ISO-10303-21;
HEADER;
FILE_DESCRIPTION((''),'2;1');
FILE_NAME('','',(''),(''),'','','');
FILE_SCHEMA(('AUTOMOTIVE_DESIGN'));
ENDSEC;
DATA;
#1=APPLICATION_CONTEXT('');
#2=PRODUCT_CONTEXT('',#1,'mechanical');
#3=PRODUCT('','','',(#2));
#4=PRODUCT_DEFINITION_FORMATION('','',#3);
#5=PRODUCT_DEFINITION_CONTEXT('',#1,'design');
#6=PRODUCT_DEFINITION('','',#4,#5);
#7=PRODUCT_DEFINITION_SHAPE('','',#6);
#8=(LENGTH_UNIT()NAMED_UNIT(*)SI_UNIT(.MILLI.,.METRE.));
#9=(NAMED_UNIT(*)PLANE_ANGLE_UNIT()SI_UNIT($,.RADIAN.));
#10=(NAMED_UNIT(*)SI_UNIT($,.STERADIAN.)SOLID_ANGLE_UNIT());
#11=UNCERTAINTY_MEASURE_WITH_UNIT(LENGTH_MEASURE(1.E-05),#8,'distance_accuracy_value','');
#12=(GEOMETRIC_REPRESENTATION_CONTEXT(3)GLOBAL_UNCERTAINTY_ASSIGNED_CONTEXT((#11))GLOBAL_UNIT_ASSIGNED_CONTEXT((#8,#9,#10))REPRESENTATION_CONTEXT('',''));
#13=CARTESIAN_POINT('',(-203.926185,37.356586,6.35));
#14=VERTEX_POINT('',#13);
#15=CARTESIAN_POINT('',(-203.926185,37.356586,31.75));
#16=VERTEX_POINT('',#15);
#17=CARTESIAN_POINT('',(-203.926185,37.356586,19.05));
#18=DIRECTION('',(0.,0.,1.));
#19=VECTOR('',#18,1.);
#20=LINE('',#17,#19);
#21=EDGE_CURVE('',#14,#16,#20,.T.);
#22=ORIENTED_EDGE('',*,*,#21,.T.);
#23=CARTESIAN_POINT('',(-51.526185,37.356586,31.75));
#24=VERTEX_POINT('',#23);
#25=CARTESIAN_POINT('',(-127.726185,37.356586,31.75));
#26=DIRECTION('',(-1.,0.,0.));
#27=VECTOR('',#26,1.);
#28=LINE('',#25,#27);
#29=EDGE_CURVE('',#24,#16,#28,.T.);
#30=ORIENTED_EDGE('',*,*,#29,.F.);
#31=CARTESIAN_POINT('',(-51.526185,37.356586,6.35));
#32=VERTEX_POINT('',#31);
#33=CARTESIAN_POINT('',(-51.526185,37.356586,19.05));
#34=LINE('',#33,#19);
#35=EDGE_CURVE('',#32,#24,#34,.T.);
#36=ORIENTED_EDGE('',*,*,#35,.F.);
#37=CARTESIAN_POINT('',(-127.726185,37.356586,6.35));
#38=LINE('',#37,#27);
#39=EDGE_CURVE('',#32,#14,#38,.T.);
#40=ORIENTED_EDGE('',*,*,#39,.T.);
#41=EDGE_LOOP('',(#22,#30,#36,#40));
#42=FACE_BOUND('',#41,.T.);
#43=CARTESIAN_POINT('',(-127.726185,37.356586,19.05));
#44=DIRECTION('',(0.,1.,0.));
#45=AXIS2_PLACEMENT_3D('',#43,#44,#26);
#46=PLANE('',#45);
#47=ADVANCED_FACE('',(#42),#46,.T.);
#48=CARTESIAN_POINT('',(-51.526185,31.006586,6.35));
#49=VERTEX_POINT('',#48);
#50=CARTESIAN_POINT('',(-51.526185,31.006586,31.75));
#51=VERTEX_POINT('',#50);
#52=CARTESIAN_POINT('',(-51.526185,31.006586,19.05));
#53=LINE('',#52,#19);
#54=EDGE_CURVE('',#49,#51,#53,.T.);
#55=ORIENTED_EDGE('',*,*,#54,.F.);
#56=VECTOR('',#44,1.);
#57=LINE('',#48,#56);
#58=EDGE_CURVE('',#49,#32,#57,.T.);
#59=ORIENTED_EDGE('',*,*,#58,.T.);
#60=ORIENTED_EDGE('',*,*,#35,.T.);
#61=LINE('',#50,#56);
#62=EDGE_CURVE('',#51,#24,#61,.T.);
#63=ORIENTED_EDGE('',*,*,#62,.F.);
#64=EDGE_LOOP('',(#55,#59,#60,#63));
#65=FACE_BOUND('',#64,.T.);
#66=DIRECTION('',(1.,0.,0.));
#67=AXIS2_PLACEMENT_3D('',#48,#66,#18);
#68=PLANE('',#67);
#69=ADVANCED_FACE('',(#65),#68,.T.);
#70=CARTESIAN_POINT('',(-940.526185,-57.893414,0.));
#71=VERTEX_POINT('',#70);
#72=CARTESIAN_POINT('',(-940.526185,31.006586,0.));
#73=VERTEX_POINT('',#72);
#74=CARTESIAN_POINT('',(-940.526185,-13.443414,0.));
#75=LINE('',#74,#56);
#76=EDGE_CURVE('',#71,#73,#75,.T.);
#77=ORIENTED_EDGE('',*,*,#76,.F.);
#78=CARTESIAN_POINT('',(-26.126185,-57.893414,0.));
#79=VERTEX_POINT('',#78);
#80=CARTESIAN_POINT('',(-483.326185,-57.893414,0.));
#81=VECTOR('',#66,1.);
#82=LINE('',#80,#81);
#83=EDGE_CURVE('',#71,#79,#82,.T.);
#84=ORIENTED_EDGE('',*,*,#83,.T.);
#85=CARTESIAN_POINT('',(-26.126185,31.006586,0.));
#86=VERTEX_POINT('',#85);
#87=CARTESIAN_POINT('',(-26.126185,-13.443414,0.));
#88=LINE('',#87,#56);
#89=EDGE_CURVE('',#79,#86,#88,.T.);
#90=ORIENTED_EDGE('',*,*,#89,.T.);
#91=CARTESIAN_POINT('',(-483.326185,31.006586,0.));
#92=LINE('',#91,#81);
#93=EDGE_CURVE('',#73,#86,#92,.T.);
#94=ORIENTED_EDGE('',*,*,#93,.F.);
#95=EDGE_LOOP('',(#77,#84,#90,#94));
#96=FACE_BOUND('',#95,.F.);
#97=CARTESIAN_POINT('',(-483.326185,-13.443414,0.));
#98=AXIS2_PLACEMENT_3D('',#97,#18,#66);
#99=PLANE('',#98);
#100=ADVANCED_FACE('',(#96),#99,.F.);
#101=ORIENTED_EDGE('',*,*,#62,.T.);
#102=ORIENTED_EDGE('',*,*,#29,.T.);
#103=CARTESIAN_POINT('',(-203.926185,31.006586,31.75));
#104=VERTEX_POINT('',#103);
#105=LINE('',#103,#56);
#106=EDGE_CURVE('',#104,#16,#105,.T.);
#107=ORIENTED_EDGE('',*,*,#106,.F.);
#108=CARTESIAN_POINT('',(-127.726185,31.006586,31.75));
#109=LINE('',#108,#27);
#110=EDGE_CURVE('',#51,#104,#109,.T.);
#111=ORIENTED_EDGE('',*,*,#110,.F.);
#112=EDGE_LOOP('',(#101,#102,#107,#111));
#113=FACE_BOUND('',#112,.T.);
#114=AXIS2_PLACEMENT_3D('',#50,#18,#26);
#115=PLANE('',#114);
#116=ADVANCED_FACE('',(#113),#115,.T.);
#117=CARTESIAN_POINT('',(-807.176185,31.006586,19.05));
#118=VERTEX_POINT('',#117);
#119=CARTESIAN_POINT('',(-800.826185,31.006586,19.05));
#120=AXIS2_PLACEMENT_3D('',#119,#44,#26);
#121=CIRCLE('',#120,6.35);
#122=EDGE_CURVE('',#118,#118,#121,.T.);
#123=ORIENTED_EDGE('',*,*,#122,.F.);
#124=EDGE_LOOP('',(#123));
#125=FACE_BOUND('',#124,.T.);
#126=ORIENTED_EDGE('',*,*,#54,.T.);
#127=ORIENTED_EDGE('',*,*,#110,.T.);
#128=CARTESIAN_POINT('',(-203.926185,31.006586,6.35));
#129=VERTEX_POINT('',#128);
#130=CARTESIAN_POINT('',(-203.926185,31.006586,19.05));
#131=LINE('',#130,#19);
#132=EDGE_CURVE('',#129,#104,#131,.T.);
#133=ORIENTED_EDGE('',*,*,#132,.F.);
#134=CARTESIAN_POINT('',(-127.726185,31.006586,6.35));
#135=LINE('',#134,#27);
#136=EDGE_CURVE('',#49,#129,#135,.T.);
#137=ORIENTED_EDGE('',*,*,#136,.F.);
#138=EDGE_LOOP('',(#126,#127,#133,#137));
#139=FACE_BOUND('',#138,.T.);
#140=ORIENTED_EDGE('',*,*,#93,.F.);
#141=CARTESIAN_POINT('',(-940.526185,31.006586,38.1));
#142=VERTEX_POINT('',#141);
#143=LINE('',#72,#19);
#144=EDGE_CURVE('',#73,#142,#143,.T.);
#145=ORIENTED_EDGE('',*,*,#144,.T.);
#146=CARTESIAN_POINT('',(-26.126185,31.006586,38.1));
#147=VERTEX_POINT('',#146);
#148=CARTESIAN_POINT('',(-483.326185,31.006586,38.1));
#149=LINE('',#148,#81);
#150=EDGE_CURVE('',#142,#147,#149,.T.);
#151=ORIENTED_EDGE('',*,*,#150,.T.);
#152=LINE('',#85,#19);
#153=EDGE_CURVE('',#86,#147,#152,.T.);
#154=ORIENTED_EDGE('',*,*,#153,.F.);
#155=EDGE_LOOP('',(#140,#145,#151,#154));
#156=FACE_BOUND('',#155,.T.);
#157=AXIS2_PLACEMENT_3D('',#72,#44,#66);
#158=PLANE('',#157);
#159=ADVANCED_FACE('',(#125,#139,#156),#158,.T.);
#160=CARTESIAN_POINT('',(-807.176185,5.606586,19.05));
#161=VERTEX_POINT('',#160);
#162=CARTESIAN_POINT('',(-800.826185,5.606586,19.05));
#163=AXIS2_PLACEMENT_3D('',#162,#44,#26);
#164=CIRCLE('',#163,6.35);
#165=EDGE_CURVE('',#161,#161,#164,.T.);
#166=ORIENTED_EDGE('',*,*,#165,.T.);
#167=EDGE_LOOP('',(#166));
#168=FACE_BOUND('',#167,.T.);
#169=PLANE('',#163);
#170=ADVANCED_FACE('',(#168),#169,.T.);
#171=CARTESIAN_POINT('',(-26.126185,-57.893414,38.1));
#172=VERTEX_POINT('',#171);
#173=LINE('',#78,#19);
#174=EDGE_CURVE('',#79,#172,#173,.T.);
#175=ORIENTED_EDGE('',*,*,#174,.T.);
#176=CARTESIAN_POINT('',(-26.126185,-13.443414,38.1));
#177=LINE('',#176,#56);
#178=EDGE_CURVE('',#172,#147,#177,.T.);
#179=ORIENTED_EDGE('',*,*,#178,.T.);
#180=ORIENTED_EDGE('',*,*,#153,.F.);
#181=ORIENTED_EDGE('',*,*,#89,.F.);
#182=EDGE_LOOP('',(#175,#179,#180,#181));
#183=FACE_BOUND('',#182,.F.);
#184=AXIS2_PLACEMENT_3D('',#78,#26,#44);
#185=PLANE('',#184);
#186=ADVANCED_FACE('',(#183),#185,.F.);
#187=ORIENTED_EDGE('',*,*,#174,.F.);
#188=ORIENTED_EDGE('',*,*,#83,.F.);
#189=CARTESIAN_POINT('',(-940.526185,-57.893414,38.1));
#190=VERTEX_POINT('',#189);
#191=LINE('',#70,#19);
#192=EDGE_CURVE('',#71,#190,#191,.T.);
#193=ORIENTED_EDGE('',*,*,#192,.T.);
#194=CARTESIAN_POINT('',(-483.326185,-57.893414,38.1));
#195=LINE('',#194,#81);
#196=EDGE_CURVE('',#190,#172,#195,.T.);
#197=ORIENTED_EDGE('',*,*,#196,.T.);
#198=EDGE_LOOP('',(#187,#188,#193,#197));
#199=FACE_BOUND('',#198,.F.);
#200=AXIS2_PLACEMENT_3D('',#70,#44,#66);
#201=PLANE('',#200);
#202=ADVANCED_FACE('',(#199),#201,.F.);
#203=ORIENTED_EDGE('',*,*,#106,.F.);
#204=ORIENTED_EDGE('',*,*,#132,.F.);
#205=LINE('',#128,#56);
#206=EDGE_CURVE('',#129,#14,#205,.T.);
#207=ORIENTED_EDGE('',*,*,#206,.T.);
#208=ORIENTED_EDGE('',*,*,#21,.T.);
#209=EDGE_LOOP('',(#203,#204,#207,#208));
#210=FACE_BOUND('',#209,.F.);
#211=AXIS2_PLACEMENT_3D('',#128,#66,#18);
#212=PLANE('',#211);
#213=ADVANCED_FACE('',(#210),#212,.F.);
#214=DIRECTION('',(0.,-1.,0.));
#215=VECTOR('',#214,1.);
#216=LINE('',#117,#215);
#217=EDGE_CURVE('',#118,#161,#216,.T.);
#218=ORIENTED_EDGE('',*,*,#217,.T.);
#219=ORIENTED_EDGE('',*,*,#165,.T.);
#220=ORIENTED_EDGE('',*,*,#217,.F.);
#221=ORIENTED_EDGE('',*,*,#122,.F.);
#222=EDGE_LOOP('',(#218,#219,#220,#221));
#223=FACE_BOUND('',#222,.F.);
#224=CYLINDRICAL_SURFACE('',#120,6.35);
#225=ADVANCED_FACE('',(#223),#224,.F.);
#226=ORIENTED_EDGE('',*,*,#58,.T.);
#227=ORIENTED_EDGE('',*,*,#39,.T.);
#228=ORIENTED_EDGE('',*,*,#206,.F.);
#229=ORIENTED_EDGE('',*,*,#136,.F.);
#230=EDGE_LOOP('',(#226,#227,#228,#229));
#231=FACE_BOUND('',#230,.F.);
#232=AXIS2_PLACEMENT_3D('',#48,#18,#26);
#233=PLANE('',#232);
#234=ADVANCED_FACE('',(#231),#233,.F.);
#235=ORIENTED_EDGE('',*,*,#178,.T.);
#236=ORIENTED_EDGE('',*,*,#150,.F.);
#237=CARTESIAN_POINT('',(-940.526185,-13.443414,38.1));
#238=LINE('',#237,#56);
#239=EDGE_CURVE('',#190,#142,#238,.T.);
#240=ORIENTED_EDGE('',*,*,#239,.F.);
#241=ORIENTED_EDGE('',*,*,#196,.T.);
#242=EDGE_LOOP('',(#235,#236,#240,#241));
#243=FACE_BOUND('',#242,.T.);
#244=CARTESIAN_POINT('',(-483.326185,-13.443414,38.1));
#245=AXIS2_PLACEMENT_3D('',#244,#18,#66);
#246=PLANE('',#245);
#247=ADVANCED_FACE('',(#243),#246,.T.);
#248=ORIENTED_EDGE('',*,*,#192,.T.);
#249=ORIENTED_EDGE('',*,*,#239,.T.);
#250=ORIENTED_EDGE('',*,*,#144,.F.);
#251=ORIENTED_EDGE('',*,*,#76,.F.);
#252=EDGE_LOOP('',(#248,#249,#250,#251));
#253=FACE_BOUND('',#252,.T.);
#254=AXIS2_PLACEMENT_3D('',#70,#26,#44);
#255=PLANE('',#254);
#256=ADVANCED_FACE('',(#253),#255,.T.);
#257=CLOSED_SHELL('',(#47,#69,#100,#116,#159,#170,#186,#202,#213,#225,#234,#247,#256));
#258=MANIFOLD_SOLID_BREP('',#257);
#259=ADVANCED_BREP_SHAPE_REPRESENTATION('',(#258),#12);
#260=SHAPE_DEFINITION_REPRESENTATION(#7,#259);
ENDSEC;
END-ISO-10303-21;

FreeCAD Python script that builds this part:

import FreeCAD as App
import Part
import Sketcher
from FreeCAD import Vector
Q = App.Units.Quantity


def add_polygon(sketch, points):
    """Adds a closed chain of lines whose ends are joined by coincident constraints."""
    first, n = sketch.GeometryCount, len(points)
    for a, b in zip(points, points[1:] + points[:1]):
        sketch.addGeometry(Part.LineSegment(App.Vector(*a, 0), App.Vector(*b, 0)), False)
    for i in range(n):
        sketch.addConstraint(Sketcher.Constraint("Coincident", first + i, 2, first + (i + 1) % n, 1))

doc = App.newDocument("Part")
params = doc.addObject("Spreadsheet::Sheet", "Params")
for row, (alias, value) in enumerate([
    ("sketch1_width", "36 in"),
    ("sketch1_height", "3.5 in"),
    ("pad1_length", "1.5 in"),
    ("sketch2_width", "6 in"),
    ("sketch2_height", "1 in"),
    ("pad2_length", "0.25 in"),
    ("sketch3_diameter", "0.5 in"),
    ("pocket1_length", "1 in"),
], start=1):
    params.set(f"A{row}", alias)
    params.set(f"B{row}", "=" + value)
    params.setAlias(f"B{row}", alias)

body = doc.addObject("PartDesign::Body", "Body")

# Sketch on XY plane
sketch1 = doc.addObject("Sketcher::SketchObject", "Sketch")
body.addObject(sketch1)
sketch1.AttachmentSupport = (doc.XY_Plane, [""])
sketch1.MapMode = "FlatFace"
add_polygon(sketch1, [(-940.526185, 31.006586), (-940.526185, -57.893414), (-26.126185, -57.893414), (-26.126185, 31.006586)])  # lines 0-3
sketch1.addConstraint(Sketcher.Constraint("Vertical", 0))
sketch1.addConstraint(Sketcher.Constraint("Horizontal", 1))
sketch1.addConstraint(Sketcher.Constraint("Vertical", 2))
sketch1.addConstraint(Sketcher.Constraint("Horizontal", 3))
sketch1.addConstraint(Sketcher.Constraint("DistanceX", 1, 1, 1, 2, Q("36 in")))
sketch1.addConstraint(Sketcher.Constraint("DistanceY", 0, 2, 0, 1, Q("3.5 in")))
sketch1.addConstraint(Sketcher.Constraint("DistanceX", 0, 2, -1, 1, Q("940.526185 mm")))
sketch1.addConstraint(Sketcher.Constraint("DistanceY", 0, 2, -1, 1, Q("57.893414 mm")))
sketch1.setExpression("Constraints[8]", "Params.sketch1_width")
sketch1.setExpression("Constraints[9]", "Params.sketch1_height")
pad1 = doc.addObject("PartDesign::Pad", "Pad")
body.addObject(pad1)
pad1.Profile = sketch1
pad1.setExpression("Length", "Params.pad1_length")

# Sketch on XZ plane
sketch2 = doc.addObject("Sketcher::SketchObject", "Sketch001")
body.addObject(sketch2)
sketch2.AttachmentSupport = (doc.XZ_Plane, [""])
sketch2.MapMode = "FlatFace"
sketch2.AttachmentOffset = App.Placement(Vector(0, 0, -31.006586), App.Rotation())
add_polygon(sketch2, [(-51.526185, 31.75), (-51.526185, 6.35), (-203.926185, 6.35), (-203.926185, 31.75)])  # lines 0-3
sketch2.addConstraint(Sketcher.Constraint("Vertical", 0))
sketch2.addConstraint(Sketcher.Constraint("Horizontal", 1))
sketch2.addConstraint(Sketcher.Constraint("Vertical", 2))
sketch2.addConstraint(Sketcher.Constraint("Horizontal", 3))
sketch2.addConstraint(Sketcher.Constraint("DistanceX", 1, 2, 1, 1, Q("6 in")))
sketch2.addConstraint(Sketcher.Constraint("DistanceY", 0, 2, 0, 1, Q("1 in")))
sketch2.addConstraint(Sketcher.Constraint("DistanceY", -1, 1, 0, 2, Q("0.25 in")))
sketch2.addConstraint(Sketcher.Constraint("DistanceX", 0, 2, -1, 1, Q("51.526185 mm")))
sketch2.setExpression("Constraints[8]", "Params.sketch2_width")
sketch2.setExpression("Constraints[9]", "Params.sketch2_height")
pad2 = doc.addObject("PartDesign::Pad", "Pad001")
body.addObject(pad2)
pad2.Profile = sketch2
pad2.setExpression("Length", "Params.pad2_length")
pad2.Reversed = True

# Sketch on XZ plane
sketch3 = doc.addObject("Sketcher::SketchObject", "Sketch002")
body.addObject(sketch3)
sketch3.AttachmentSupport = (doc.XZ_Plane, [""])
sketch3.MapMode = "FlatFace"
sketch3.AttachmentOffset = App.Placement(Vector(0, 0, -31.006586), App.Rotation())
sketch3.addGeometry(Part.Circle(Vector(-800.826185, 19.05, 0), Vector(0, 0, 1), 6.35), False)
sketch3.addConstraint(Sketcher.Constraint("Diameter", 0, Q("0.5 in")))
sketch3.addConstraint(Sketcher.Constraint("DistanceY", -1, 1, 0, 3, Q("0.75 in")))
sketch3.addConstraint(Sketcher.Constraint("DistanceX", 0, 3, -1, 1, Q("800.826185 mm")))
sketch3.setExpression("Constraints[0]", "Params.sketch3_diameter")
pocket1 = doc.addObject("PartDesign::Pocket", "Pocket")
body.addObject(pocket1)
pocket1.Profile = sketch3
pocket1.setExpression("Length", "Params.pocket1_length")
pocket1.Reversed = True

doc.recompute()
